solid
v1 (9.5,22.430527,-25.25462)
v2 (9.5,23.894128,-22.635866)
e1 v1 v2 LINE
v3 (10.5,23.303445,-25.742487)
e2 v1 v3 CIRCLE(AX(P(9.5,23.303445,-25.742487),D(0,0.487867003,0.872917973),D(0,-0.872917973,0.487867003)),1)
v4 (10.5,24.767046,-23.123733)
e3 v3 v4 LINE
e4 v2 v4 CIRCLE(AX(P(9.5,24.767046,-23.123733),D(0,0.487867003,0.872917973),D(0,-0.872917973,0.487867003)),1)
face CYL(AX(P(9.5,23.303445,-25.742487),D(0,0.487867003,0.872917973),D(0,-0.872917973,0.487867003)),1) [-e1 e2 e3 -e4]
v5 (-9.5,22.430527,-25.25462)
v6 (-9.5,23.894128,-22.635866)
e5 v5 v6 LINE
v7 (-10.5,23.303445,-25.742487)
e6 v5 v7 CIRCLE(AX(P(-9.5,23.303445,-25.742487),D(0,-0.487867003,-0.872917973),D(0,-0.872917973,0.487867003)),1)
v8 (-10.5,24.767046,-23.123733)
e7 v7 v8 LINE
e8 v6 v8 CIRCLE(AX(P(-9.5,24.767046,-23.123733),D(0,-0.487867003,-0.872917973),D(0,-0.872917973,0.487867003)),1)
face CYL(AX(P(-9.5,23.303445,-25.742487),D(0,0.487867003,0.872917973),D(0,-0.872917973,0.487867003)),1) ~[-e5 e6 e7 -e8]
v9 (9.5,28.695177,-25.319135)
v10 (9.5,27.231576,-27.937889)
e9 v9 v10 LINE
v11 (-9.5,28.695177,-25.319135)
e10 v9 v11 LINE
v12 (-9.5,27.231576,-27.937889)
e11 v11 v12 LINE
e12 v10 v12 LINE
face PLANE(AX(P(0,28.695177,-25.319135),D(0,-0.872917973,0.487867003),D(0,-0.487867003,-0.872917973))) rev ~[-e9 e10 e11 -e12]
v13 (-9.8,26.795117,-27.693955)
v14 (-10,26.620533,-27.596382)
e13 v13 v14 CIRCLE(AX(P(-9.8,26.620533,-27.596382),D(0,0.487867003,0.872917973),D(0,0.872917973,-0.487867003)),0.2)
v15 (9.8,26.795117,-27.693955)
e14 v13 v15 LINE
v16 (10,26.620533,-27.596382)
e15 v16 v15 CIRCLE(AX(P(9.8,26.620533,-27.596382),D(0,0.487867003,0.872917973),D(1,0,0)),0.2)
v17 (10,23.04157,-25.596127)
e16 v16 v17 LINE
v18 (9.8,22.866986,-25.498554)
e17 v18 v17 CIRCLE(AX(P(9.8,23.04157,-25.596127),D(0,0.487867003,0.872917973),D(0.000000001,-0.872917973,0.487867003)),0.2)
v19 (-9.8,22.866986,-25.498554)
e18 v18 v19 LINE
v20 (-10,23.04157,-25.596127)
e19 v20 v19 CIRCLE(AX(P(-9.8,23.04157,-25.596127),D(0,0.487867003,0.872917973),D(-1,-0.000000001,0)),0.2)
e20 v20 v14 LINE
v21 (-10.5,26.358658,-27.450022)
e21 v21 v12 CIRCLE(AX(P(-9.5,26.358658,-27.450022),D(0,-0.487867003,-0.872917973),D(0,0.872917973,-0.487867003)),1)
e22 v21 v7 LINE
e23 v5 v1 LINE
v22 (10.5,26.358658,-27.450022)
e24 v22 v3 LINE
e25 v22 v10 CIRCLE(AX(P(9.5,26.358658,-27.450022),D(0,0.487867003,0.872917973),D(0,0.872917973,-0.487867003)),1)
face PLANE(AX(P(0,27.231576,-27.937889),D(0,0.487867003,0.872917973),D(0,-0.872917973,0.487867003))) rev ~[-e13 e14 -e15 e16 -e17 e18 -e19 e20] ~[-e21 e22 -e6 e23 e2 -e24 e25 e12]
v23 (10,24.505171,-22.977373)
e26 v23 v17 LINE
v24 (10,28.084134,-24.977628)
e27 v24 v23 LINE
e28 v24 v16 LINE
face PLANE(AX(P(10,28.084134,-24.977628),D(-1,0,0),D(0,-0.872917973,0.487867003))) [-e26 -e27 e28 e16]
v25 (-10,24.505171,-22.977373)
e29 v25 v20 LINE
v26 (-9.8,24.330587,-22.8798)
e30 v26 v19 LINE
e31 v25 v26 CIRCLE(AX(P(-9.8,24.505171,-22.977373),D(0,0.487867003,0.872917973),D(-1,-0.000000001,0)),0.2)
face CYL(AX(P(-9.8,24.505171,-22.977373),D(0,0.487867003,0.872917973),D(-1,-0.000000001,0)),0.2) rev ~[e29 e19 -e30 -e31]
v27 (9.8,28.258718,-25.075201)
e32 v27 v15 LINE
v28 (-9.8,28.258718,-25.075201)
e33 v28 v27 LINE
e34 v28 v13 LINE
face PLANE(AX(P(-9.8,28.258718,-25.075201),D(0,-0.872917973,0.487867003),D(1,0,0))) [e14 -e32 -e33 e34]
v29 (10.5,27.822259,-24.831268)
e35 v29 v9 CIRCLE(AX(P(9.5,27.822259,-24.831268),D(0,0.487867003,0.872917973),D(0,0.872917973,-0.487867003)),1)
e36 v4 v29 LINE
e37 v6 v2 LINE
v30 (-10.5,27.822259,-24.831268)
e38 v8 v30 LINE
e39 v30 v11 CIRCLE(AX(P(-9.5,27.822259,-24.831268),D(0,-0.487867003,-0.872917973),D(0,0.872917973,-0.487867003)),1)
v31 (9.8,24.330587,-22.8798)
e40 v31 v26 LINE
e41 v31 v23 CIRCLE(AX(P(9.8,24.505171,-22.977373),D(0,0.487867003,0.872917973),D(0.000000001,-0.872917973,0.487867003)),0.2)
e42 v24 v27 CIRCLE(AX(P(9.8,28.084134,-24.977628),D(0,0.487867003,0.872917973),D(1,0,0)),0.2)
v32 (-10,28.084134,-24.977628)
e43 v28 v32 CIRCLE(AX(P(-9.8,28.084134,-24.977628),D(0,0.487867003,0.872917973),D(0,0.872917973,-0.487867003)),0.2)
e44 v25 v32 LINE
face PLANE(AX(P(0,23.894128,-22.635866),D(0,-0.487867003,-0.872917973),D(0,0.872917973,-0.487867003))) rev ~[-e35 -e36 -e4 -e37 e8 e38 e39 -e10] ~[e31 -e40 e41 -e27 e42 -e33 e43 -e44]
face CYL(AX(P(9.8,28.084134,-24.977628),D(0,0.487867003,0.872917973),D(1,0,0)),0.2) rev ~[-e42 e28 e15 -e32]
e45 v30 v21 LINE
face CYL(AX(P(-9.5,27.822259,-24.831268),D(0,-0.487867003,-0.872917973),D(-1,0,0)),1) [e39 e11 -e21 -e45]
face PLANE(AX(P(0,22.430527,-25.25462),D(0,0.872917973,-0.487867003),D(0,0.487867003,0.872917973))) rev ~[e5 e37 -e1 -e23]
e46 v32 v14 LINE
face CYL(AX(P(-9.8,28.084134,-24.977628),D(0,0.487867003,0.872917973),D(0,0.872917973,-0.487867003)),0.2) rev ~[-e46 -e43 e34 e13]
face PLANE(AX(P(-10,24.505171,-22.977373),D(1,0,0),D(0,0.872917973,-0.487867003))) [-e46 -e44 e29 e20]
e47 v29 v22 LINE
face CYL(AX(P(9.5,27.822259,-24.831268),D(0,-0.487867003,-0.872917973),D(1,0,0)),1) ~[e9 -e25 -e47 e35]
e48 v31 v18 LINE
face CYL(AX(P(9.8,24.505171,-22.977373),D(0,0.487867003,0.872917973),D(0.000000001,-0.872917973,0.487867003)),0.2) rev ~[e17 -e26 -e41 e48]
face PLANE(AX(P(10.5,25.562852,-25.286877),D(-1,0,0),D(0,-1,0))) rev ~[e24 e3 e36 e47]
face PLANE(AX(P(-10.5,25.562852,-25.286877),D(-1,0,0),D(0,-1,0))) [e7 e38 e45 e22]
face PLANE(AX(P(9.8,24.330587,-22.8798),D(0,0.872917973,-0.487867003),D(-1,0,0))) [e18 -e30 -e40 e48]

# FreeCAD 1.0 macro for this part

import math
import FreeCAD as App
import Part
import Sketcher
Q = App.Units.Quantity


def edges_at(feature, points):
    """Names of the edges that pass closest to the given points."""
    edges = feature.Shape.Edges
    near = lambda p: min(range(len(edges)), key=lambda i: edges[i].distToShape(Part.Vertex(*p))[0])
    return sorted({f"Edge{near(p) + 1}" for p in points})


def add_polygon(sketch, points):
    """Adds a closed chain of lines whose ends are joined by coincident constraints."""
    first, n = sketch.GeometryCount, len(points)
    for a, b in zip(points, points[1:] + points[:1]):
        sketch.addGeometry(Part.LineSegment(App.Vector(*a, 0), App.Vector(*b, 0)), False)
    for i in range(n):
        sketch.addConstraint(Sketcher.Constraint("Coincident", first + i, 2, first + (i + 1) % n, 1))

doc = App.newDocument("Part")
body = doc.addObject("PartDesign::Body", "Body")

sketch1 = body.newObject("Sketcher::SketchObject", "Sketch")
sketch1.AttachmentSupport = (doc.getObject("YZ_Plane"), [""])
sketch1.MapMode = "FlatFace"
add_polygon(sketch1, [(28.7, -25.3), (23.9, -22.6), (22.4, -25.3), (27.2, -27.9)])
sketch1.addConstraint([
    Sketcher.Constraint("Perpendicular", 0, 1),
    Sketcher.Constraint("Perpendicular", 1, 2),
    Sketcher.Constraint("Perpendicular", 2, 3),
    Sketcher.Constraint("Distance", 1, Q("3 mm")),
    Sketcher.Constraint("Distance", 0, Q("5.5 mm")),
    Sketcher.Constraint("DistanceX", 1, 2, 0, 2, Q("1.463601 mm")),
    Sketcher.Constraint("DistanceX", -1, 1, 0, 2, Q("23.894128 mm")),
    Sketcher.Constraint("DistanceY", 1, 2, -1, 1, Q("25.25462 mm")),
])
pad1 = body.newObject("PartDesign::Pad", "Pad")
pad1.Profile = sketch1
pad1.Length = 21
pad1.Midplane = True

sketch2 = body.newObject("Sketcher::SketchObject", "Sketch001")
sketch2.Placement = App.Placement(App.Vector(0, -3.952746, -7.072467), App.Rotation(App.Vector(0, -0.872917973, 0.487867003), App.Vector(1, 0, 0), App.Vector(0, 0.487867003, 0.872917973), "ZXY"))
sketch2.addGeometry([
    Part.LineSegment(App.Vector(-32.6, 10, 0), App.Vector(-36.7, 10, 0)),
    Part.ArcOfCircle(Part.Circle(App.Vector(-36.7, 9.8, 0), App.Vector(0, 0, 1), 0.2), math.radians(90), math.radians(180)),
    Part.LineSegment(App.Vector(-36.9, 9.8, 0), App.Vector(-36.9, -9.8, 0)),
    Part.ArcOfCircle(Part.Circle(App.Vector(-36.7, -9.8, 0), App.Vector(0, 0, 1), 0.2), math.radians(180), math.radians(270)),
    Part.LineSegment(App.Vector(-36.7, -10, 0), App.Vector(-32.6, -10, 0)),
    Part.ArcOfCircle(Part.Circle(App.Vector(-32.6, -9.8, 0), App.Vector(0, 0, 1), 0.2), math.radians(-90), math.radians(0)),
    Part.LineSegment(App.Vector(-32.4, -9.8, 0), App.Vector(-32.4, 9.8, 0)),
    Part.ArcOfCircle(Part.Circle(App.Vector(-32.6, 9.8, 0), App.Vector(0, 0, 1), 0.2), math.radians(0), math.radians(90)),
], False)
sketch2.addConstraint([
    Sketcher.Constraint("Tangent", 0, 2, 1, 1),
    Sketcher.Constraint("Tangent", 1, 2, 2, 1),
    Sketcher.Constraint("Tangent", 2, 2, 3, 1),
    Sketcher.Constraint("Tangent", 3, 2, 4, 1),
    Sketcher.Constraint("Tangent", 4, 2, 5, 1),
    Sketcher.Constraint("Tangent", 5, 2, 6, 1),
    Sketcher.Constraint("Tangent", 6, 2, 7, 1),
    Sketcher.Constraint("Tangent", 7, 2, 0, 1),
    Sketcher.Constraint("Horizontal", 0),
    Sketcher.Constraint("Vertical", 2),
    Sketcher.Constraint("Horizontal", 4),
    Sketcher.Constraint("Vertical", 6),
    Sketcher.Constraint("Equal", 1, 3),
    Sketcher.Constraint("Equal", 3, 5),
    Sketcher.Constraint("Equal", 5, 7),
    Sketcher.Constraint("Radius", 1, Q("0.2 mm")),
    Sketcher.Constraint("DistanceX", 0, 2, 0, 1, Q("4.1 mm")),
    Sketcher.Constraint("DistanceY", 2, 2, 2, 1, Q("19.6 mm")),
    Sketcher.Constraint("DistanceY", -1, 1, 0, 2, Q("10 mm")),
    Sketcher.Constraint("DistanceX", 1, 3, -1, 1, Q("36.700906 mm")),
])
pocket1 = body.newObject("PartDesign::Pocket", "Pocket")
pocket1.Profile = sketch2
pocket1.Length = 5
doc.recompute()

fillet = body.newObject("PartDesign::Fillet", "Fillet")
fillet.Base = (pocket1, edges_at(pocket1, [
    (10.5, 27.963, -26.629),
    (10.5, 23.162, -23.945),
    (-10.5, 27.963, -26.629),
    (-10.5, 23.162, -23.945),
]))
fillet.Radius = 1

doc.recompute()
